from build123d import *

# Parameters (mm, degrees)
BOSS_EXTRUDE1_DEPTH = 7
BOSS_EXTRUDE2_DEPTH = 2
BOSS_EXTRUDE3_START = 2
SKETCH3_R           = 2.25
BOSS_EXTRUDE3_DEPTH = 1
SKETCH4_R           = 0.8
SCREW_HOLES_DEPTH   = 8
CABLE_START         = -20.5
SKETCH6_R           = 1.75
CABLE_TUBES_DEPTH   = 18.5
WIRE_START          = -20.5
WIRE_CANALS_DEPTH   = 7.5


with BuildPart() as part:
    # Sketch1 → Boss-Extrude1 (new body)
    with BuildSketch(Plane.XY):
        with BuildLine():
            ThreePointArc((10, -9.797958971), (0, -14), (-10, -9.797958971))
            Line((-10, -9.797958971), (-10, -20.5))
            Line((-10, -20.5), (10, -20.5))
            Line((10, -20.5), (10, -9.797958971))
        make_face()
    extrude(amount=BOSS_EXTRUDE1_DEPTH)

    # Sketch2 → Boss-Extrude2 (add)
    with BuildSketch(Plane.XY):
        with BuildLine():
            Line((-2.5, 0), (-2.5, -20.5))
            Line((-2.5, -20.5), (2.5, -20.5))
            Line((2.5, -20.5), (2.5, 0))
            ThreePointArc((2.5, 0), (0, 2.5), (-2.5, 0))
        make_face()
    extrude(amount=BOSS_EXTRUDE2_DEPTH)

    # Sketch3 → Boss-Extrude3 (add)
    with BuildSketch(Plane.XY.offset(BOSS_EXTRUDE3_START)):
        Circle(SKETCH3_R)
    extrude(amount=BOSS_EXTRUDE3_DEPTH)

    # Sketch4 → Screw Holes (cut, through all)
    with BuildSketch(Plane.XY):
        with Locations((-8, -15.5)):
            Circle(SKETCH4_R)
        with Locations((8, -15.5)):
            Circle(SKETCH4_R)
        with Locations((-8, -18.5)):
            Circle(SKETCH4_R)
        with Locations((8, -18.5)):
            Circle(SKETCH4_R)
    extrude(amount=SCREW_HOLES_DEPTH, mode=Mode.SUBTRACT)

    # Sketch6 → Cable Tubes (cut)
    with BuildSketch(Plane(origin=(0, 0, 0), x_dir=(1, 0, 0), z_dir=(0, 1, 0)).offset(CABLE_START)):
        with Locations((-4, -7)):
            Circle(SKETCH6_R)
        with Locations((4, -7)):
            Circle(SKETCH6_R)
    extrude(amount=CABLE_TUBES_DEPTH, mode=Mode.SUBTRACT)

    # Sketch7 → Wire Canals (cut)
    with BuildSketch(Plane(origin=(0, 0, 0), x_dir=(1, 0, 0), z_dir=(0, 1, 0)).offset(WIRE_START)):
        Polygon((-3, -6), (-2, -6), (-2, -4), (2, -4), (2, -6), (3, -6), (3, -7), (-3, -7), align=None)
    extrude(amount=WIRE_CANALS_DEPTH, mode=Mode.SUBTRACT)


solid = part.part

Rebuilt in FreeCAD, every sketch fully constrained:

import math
import FreeCAD as App
import Part
import Sketcher

V = App.Vector


def add_polygon(sketch, points):
    """Adds a closed chain of lines whose ends are joined by coincident constraints."""
    first, n = sketch.GeometryCount, len(points)
    for a, b in zip(points, points[1:] + points[:1]):
        sketch.addGeometry(Part.LineSegment(App.Vector(*a, 0), App.Vector(*b, 0)), False)
    for i in range(n):
        sketch.addConstraint(Sketcher.Constraint("Coincident", first + i, 2, first + (i + 1) % n, 1))

doc = App.newDocument("Part")
body = doc.addObject("PartDesign::Body", "Body")

sketch1 = body.newObject("Sketcher::SketchObject", "Sketch")
sketch1.AttachmentSupport = (doc.getObject("XY_Plane"), [""])
sketch1.MapMode = "FlatFace"
sketch1.addGeometry([
    Part.ArcOfCircle(Part.Circle(V(0, 0, 0), V(0, 0, 1), 14), math.radians(-136), math.radians(-44)),
    Part.LineSegment(V(-10, -10, 0), V(-10, -20, 0)),
    Part.LineSegment(V(-10, -20, 0), V(10, -20, 0)),
    Part.LineSegment(V(10, -20, 0), V(10, -10, 0)),
], False)
sketch1.addConstraint([
    Sketcher.Constraint("Coincident", 0, 1, 1, 1),
    Sketcher.Constraint("Coincident", 1, 2, 2, 1),
    Sketcher.Constraint("Coincident", 2, 2, 3, 1),
    Sketcher.Constraint("Coincident", 3, 2, 0, 2),
    Sketcher.Constraint("Vertical", 1),
    Sketcher.Constraint("Horizontal", 2),
    Sketcher.Constraint("Vertical", 3),
    Sketcher.Constraint("Coincident", 0, 3, -1, 1),
    Sketcher.Constraint("Horizontal", 0, 1, 3, 2),
    Sketcher.Constraint("Radius", 0, 14.0),
    Sketcher.Constraint("DistanceX", 2, 1, 2, 2, 20.0),
    Sketcher.Constraint("DistanceY", 1, 2, -1, 1, 20.5),
])
pad1 = body.newObject("PartDesign::Pad", "Pad")
pad1.Profile = sketch1
pad1.Length = 7

sketch2 = body.newObject("Sketcher::SketchObject", "Sketch001")
sketch2.AttachmentSupport = (doc.getObject("XY_Plane"), [""])
sketch2.MapMode = "FlatFace"
sketch2.addGeometry([
    Part.LineSegment(V(-2.5, 0, 0), V(-2.5, -20.5, 0)),
    Part.LineSegment(V(-2.5, -20.5, 0), V(2.5, -20.5, 0)),
    Part.LineSegment(V(2.5, -20.5, 0), V(2.5, 0, 0)),
    Part.ArcOfCircle(Part.Circle(V(0, 0, 0), V(0, 0, 1), 2.5), math.radians(0), math.radians(180)),
], False)
sketch2.addConstraint([
    Sketcher.Constraint("Coincident", 0, 2, 1, 1),
    Sketcher.Constraint("Coincident", 1, 2, 2, 1),
    Sketcher.Constraint("Tangent", 2, 2, 3, 1),
    Sketcher.Constraint("Tangent", 3, 2, 0, 1),
    Sketcher.Constraint("Vertical", 0),
    Sketcher.Constraint("Horizontal", 1),
    Sketcher.Constraint("Vertical", 2),
    Sketcher.Constraint("Coincident", 3, 3, -1, 1),
    Sketcher.Constraint("Radius", 3, 2.5),
    Sketcher.Constraint("DistanceY", 0, 2, 0, 1, 20.5),
])
pad2 = body.newObject("PartDesign::Pad", "Pad001")
pad2.Profile = sketch2
pad2.Length = 2

sketch3 = body.newObject("Sketcher::SketchObject", "Sketch002")
sketch3.AttachmentSupport = (doc.getObject("XY_Plane"), [""])
sketch3.MapMode = "FlatFace"
sketch3.AttachmentOffset = App.Placement(V(0, 0, 2), App.Rotation())
sketch3.addGeometry(Part.Circle(V(0, 0, 0), V(0, 0, 1), 2.2), False)
sketch3.addConstraint([
    Sketcher.Constraint("Coincident", 0, 3, -1, 1),
    Sketcher.Constraint("Diameter", 0, 4.5),
])
pad3 = body.newObject("PartDesign::Pad", "Pad002")
pad3.Profile = sketch3
pad3.Length = 1

sketch4 = body.newObject("Sketcher::SketchObject", "Sketch003")
sketch4.AttachmentSupport = (doc.getObject("XY_Plane"), [""])
sketch4.MapMode = "FlatFace"
sketch4.addGeometry([
    Part.Circle(V(-8, -15.5, 0), V(0, 0, 1), 0.8),
    Part.Circle(V(8, -15.5, 0), V(0, 0, 1), 0.8),
    Part.Circle(V(-8, -18.5, 0), V(0, 0, 1), 0.8),
    Part.Circle(V(8, -18.5, 0), V(0, 0, 1), 0.8),
], False)
sketch4.addConstraint([
    Sketcher.Constraint("Equal", 0, 1),
    Sketcher.Constraint("Equal", 1, 2),
    Sketcher.Constraint("Equal", 2, 3),
    Sketcher.Constraint("Symmetric", 0, 3, 1, 3, -2),
    Sketcher.Constraint("Symmetric", 2, 3, 3, 3, -2),
    Sketcher.Constraint("Vertical", 0, 3, 2, 3),
    Sketcher.Constraint("Diameter", 0, 1.6),
    Sketcher.Constraint("DistanceX", 0, 3, -1, 1, 8.0),
    Sketcher.Constraint("DistanceY", 2, 3, 0, 3, 3.0),
    Sketcher.Constraint("DistanceY", 0, 3, -1, 1, 15.5),
])
pocket1 = body.newObject("PartDesign::Pocket", "Pocket")
pocket1.Profile = sketch4
pocket1.Type = "ThroughAll"
pocket1.Reversed = True

sketch5 = body.newObject("Sketcher::SketchObject", "Sketch004")
sketch5.AttachmentSupport = (doc.getObject("XZ_Plane"), [""])
sketch5.MapMode = "FlatFace"
sketch5.AttachmentOffset = App.Placement(V(0, 0, 20.5), App.Rotation())
sketch5.addGeometry([
    Part.Circle(V(-4, 7, 0), V(0, 0, 1), 1.8),
    Part.Circle(V(4, 7, 0), V(0, 0, 1), 1.8),
], False)
sketch5.addConstraint([
    Sketcher.Constraint("Equal", 0, 1),
    Sketcher.Constraint("Symmetric", 0, 3, 1, 3, -2),
    Sketcher.Constraint("Diameter", 0, 3.5),
    Sketcher.Constraint("DistanceX", 0, 3, -1, 1, 4.0),
    Sketcher.Constraint("DistanceY", -1, 1, 0, 3, 7.0),
])
pocket2 = body.newObject("PartDesign::Pocket", "Pocket001")
pocket2.Profile = sketch5
pocket2.Length = 18.5

sketch6 = body.newObject("Sketcher::SketchObject", "Sketch005")
sketch6.AttachmentSupport = (doc.getObject("XZ_Plane"), [""])
sketch6.MapMode = "FlatFace"
sketch6.AttachmentOffset = App.Placement(V(0, 0, 20.5), App.Rotation())
add_polygon(sketch6, [(-2, 6), (-3, 6), (-3, 7), (3, 7), (3, 6), (2, 6), (2, 4), (-2, 4)])
sketch6.addConstraint([
    Sketcher.Constraint("Horizontal", 0),
    Sketcher.Constraint("Vertical", 1),
    Sketcher.Constraint("Horizontal", 2),
    Sketcher.Constraint("Vertical", 3),
    Sketcher.Constraint("Horizontal", 4),
    Sketcher.Constraint("Vertical", 5),
    Sketcher.Constraint("Horizontal", 6),
    Sketcher.Constraint("Vertical", 7),
    Sketcher.Constraint("Symmetric", 0, 2, 3, 2, -2),
    Sketcher.Constraint("Equal", 0, 4),
    Sketcher.Constraint("Equal", 4, 1),
    Sketcher.Constraint("DistanceX", 0, 2, 0, 1, 1.0),
    Sketcher.Constraint("DistanceX", 2, 1, 2, 2, 6.0),
    Sketcher.Constraint("DistanceY", 5, 2, 5, 1, 2.0),
    Sketcher.Constraint("DistanceY", -1, 1, 0, 2, 6.0),
])
pocket3 = body.newObject("PartDesign::Pocket", "Pocket002")
pocket3.Profile = sketch6
pocket3.Length = 7.5

doc.recompute()
